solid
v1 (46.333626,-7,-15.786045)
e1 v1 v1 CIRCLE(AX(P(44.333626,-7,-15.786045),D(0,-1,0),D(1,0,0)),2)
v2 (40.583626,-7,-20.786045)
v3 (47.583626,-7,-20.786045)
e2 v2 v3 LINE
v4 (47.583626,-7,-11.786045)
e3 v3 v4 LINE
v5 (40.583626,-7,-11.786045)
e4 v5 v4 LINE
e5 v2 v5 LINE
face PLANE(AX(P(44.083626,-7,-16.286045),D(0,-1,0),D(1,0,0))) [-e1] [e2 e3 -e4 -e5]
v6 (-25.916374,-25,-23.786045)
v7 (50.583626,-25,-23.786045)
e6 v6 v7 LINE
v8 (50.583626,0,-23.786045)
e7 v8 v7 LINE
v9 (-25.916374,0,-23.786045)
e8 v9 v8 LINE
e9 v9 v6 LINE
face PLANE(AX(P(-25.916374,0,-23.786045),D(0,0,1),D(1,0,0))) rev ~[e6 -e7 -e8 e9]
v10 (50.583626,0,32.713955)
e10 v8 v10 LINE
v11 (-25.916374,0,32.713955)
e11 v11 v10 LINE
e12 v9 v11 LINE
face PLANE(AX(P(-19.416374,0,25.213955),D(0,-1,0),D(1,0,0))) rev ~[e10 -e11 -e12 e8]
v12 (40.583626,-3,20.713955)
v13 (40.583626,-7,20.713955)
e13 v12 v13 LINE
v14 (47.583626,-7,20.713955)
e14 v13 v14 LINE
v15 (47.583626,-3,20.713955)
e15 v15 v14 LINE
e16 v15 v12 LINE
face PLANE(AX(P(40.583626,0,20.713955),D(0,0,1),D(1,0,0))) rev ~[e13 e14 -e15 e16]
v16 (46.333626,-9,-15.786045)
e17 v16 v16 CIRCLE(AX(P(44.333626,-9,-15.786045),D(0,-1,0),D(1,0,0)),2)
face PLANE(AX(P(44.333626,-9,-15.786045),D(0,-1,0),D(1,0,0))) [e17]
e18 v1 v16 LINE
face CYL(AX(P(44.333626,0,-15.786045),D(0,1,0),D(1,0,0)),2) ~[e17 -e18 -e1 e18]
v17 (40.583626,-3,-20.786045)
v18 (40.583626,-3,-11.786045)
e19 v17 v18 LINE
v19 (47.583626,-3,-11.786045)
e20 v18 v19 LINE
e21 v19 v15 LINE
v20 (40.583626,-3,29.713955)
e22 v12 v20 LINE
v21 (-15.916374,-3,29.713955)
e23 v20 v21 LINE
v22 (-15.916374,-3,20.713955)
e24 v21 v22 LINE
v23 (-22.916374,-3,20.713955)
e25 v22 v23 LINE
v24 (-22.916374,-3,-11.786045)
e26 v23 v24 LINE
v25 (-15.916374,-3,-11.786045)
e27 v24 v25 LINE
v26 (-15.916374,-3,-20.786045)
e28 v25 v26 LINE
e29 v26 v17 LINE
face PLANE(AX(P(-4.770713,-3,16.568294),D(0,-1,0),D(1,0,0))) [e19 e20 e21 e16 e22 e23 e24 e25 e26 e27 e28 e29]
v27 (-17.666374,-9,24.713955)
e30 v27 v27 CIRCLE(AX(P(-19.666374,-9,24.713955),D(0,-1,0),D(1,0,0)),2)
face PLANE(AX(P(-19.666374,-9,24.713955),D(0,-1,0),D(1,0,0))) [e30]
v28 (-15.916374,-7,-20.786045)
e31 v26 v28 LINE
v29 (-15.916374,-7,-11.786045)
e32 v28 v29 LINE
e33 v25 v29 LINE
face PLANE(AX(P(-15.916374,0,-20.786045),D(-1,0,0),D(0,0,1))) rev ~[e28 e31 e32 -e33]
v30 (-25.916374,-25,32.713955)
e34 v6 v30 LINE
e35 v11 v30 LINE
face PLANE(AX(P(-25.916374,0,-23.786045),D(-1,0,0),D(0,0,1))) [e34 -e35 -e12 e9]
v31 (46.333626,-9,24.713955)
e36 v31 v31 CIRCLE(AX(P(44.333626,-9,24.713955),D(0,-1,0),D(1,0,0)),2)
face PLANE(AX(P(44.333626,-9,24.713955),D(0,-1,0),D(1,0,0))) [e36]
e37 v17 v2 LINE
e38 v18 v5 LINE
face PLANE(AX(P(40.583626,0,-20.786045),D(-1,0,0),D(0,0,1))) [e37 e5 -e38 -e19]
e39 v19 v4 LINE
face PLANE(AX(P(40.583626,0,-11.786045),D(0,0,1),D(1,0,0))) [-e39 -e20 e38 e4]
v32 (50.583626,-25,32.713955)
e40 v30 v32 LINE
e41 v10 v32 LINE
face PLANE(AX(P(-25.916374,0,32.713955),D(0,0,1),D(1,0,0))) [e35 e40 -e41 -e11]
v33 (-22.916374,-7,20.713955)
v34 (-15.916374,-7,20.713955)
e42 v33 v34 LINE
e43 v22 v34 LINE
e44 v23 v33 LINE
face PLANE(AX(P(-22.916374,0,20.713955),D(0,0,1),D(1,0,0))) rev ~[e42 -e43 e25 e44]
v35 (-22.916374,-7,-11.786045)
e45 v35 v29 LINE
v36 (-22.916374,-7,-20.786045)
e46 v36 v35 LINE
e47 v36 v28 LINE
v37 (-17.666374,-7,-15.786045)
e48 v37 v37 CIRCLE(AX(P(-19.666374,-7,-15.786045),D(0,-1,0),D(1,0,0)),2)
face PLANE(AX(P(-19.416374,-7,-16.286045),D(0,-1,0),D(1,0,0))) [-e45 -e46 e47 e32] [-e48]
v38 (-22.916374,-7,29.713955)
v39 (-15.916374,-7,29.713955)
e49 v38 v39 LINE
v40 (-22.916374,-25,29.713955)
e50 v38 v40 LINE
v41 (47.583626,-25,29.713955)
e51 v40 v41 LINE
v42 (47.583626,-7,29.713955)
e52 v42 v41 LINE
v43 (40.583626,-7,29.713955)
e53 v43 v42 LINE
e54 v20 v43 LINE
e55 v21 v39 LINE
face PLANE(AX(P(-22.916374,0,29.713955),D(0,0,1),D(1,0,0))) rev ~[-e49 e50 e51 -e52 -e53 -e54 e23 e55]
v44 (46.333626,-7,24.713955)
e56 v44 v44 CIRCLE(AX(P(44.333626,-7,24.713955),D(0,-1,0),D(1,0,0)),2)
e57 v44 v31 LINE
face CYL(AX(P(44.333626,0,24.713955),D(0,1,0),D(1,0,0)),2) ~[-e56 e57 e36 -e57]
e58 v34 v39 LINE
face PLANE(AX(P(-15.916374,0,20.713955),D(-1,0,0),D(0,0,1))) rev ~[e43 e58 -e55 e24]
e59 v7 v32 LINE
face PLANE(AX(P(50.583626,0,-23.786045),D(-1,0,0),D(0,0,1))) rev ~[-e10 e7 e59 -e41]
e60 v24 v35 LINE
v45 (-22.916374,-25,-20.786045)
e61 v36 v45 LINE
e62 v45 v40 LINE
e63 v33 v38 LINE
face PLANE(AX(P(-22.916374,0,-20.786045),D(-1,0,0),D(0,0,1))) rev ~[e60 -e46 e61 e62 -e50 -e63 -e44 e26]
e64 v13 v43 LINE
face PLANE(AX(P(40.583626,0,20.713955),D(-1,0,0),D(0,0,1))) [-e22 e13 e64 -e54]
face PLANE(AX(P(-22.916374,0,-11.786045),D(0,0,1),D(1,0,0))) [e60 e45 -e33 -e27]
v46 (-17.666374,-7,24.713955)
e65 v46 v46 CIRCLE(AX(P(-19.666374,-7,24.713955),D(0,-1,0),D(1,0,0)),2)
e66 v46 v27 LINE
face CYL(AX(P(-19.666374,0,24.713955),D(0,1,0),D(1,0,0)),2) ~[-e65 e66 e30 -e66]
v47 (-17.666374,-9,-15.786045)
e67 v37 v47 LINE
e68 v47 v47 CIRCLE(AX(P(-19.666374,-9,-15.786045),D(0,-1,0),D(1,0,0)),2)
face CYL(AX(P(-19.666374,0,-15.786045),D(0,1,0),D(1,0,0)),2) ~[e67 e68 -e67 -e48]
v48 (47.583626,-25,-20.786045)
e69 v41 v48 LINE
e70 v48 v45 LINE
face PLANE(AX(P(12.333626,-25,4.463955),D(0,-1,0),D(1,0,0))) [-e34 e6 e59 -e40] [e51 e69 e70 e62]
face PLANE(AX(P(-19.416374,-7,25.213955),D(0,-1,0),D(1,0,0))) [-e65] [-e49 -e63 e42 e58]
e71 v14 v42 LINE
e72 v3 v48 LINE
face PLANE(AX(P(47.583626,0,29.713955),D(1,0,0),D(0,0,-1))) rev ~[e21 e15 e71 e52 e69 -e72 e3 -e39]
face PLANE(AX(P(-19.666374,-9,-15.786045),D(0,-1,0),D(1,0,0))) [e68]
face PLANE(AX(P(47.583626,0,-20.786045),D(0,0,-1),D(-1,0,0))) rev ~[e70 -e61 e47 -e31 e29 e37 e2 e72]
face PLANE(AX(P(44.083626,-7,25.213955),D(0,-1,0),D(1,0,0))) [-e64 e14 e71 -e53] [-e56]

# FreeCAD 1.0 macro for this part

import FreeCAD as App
import Part
import Sketcher

V = App.Vector


def add_polygon(sketch, points):
    """Adds a closed chain of lines whose ends are joined by coincident constraints."""
    first, n = sketch.GeometryCount, len(points)
    for a, b in zip(points, points[1:] + points[:1]):
        sketch.addGeometry(Part.LineSegment(App.Vector(*a, 0), App.Vector(*b, 0)), False)
    for i in range(n):
        sketch.addConstraint(Sketcher.Constraint("Coincident", first + i, 2, first + (i + 1) % n, 1))

doc = App.newDocument("Part")
params = doc.addObject("Spreadsheet::Sheet", "Params")
for row, (alias, value) in enumerate([
    ("sketch1_width", "76.5 mm"),
    ("sketch1_width2", "70.5 mm"),
    ("sketch1_height", "56.5 mm"),
    ("sketch1_height2", "50.5 mm"),
    ("pad1_length", "25 mm"),
    ("sketch2_width", "7 mm"),
    ("sketch2_height", "9 mm"),
    ("sketch2_width2", "56.5 mm"),
    ("sketch2_height2", "32.5 mm"),
    ("pad2_length", "3 mm"),
    ("sketch3_diameter", "4 mm"),
    ("sketch3_width", "7 mm"),
    ("sketch3_height", "9 mm"),
    ("pad3_length", "7 mm"),
    ("sketch4_diameter", "4 mm"),
    ("pad4_length", "9 mm"),
    ("sketch5_diameter", "4 mm"),
    ("pad5_length", "9 mm"),
    ("sketch6_diameter", "4 mm"),
    ("pad6_length", "9 mm"),
], start=1):
    params.set(f"A{row}", alias)
    params.set(f"B{row}", "=" + value)
    params.setAlias(f"B{row}", alias)

body = doc.addObject("PartDesign::Body", "Body")

sketch1 = body.newObject("Sketcher::SketchObject", "Sketch")
sketch1.AttachmentSupport = (doc.getObject("XZ_Plane"), [""])
sketch1.MapMode = "FlatFace"
add_polygon(sketch1, [(-26, 33), (-26, -24), (51, -24), (51, 33)])
add_polygon(sketch1, [(-23, -21), (-23, 30), (48, 30), (48, -21)])
sketch1.addConstraint([
    Sketcher.Constraint("Vertical", 0),
    Sketcher.Constraint("Horizontal", 1),
    Sketcher.Constraint("Vertical", 2),
    Sketcher.Constraint("Horizontal", 3),
    Sketcher.Constraint("Vertical", 4),
    Sketcher.Constraint("Horizontal", 5),
    Sketcher.Constraint("Vertical", 6),
    Sketcher.Constraint("Horizontal", 7),
    Sketcher.Constraint("DistanceX", 1, 1, 1, 2, 76.5),
    Sketcher.Constraint("DistanceX", 5, 1, 5, 2, 70.5),
    Sketcher.Constraint("DistanceY", 0, 2, 0, 1, 56.5),
    Sketcher.Constraint("DistanceY", 4, 1, 4, 2, 50.5),
    Sketcher.Constraint("DistanceX", 3, 2, 4, 2, 3.0),
    Sketcher.Constraint("DistanceY", 4, 2, 3, 2, 3.0),
    Sketcher.Constraint("DistanceX", 0, 2, -1, 1, 25.916374),
    Sketcher.Constraint("DistanceY", 0, 2, -1, 1, 23.786045),
])
sketch1.setExpression("Constraints[16]", "Params.sketch1_width")
sketch1.setExpression("Constraints[17]", "Params.sketch1_width2")
sketch1.setExpression("Constraints[18]", "Params.sketch1_height")
sketch1.setExpression("Constraints[19]", "Params.sketch1_height2")
pad1 = body.newObject("PartDesign::Pad", "Pad")
pad1.Profile = sketch1
pad1.setExpression("Length", "Params.pad1_length")

sketch2 = body.newObject("Sketcher::SketchObject", "Sketch001")
sketch2.AttachmentSupport = (doc.getObject("XZ_Plane"), [""])
sketch2.MapMode = "FlatFace"
add_polygon(sketch2, [(-16, 30), (-16, 21), (-23, 21), (-23, -12), (-16, -12), (-16, -21), (41, -21), (41, -12), (48, -12), (48, 21), (41, 21), (41, 30)])
sketch2.addConstraint([
    Sketcher.Constraint("Vertical", 0),
    Sketcher.Constraint("Horizontal", 1),
    Sketcher.Constraint("Vertical", 2),
    Sketcher.Constraint("Horizontal", 3),
    Sketcher.Constraint("Vertical", 4),
    Sketcher.Constraint("Horizontal", 5),
    Sketcher.Constraint("Vertical", 6),
    Sketcher.Constraint("Horizontal", 7),
    Sketcher.Constraint("Vertical", 8),
    Sketcher.Constraint("Horizontal", 9),
    Sketcher.Constraint("Vertical", 10),
    Sketcher.Constraint("Horizontal", 11),
    Sketcher.Constraint("Horizontal", 3, 2, 6, 2),
    Sketcher.Constraint("Horizontal", 1, 2, 8, 2),
    Sketcher.Constraint("Vertical", 0, 2, 3, 2),
    Sketcher.Constraint("Vertical", 6, 2, 9, 2),
    Sketcher.Constraint("Equal", 3, 7),
    Sketcher.Constraint("Equal", 0, 4),
    Sketcher.Constraint("DistanceX", 1, 2, 1, 1, 7.0),
    Sketcher.Constraint("DistanceY", 0, 2, 0, 1, 9.0),
    Sketcher.Constraint("DistanceX", 5, 1, 5, 2, 56.5),
    Sketcher.Constraint("DistanceY", 2, 2, 2, 1, 32.5),
    Sketcher.Constraint("DistanceX", 0, 2, -1, 1, 15.916374),
    Sketcher.Constraint("DistanceY", -1, 1, 0, 2, 20.713955),
])
sketch2.setExpression("Constraints[30]", "Params.sketch2_width")
sketch2.setExpression("Constraints[31]", "Params.sketch2_height")
sketch2.setExpression("Constraints[32]", "Params.sketch2_width2")
sketch2.setExpression("Constraints[33]", "Params.sketch2_height2")
pad2 = body.newObject("PartDesign::Pad", "Pad001")
pad2.Profile = sketch2
pad2.setExpression("Length", "Params.pad2_length")

sketch3 = body.newObject("Sketcher::SketchObject", "Sketch002")
sketch3.AttachmentSupport = (doc.getObject("XZ_Plane"), [""])
sketch3.MapMode = "FlatFace"
add_polygon(sketch3, [(-22.9, 29.7), (-22.9, 20.7), (-15.9, 20.7), (-15.9, 29.7)])
sketch3.addGeometry(Part.Circle(V(-19.7, 24.7, 0), V(0, 0, 1), 2), False)
add_polygon(sketch3, [(40.6, 29.7), (40.6, 20.7), (47.6, 20.7), (47.6, 29.7)])
sketch3.addGeometry(Part.Circle(V(44.3, 24.7, 0), V(0, 0, 1), 2), False)
add_polygon(sketch3, [(40.6, -11.8), (40.6, -20.8), (47.6, -20.8), (47.6, -11.8)])
sketch3.addGeometry(Part.Circle(V(44.3, -15.8, 0), V(0, 0, 1), 2), False)
add_polygon(sketch3, [(-22.9, -11.8), (-22.9, -20.8), (-15.9, -20.8), (-15.9, -11.8)])
sketch3.addGeometry(Part.Circle(V(-19.7, -15.8, 0), V(0, 0, 1), 2), False)
sketch3.addConstraint([
    Sketcher.Constraint("Vertical", 0),
    Sketcher.Constraint("Horizontal", 1),
    Sketcher.Constraint("Vertical", 2),
    Sketcher.Constraint("Horizontal", 3),
    Sketcher.Constraint("Vertical", 5),
    Sketcher.Constraint("Horizontal", 6),
    Sketcher.Constraint("Vertical", 7),
    Sketcher.Constraint("Horizontal", 8),
    Sketcher.Constraint("Vertical", 10),
    Sketcher.Constraint("Horizontal", 11),
    Sketcher.Constraint("Vertical", 12),
    Sketcher.Constraint("Horizontal", 13),
    Sketcher.Constraint("Vertical", 15),
    Sketcher.Constraint("Horizontal", 16),
    Sketcher.Constraint("Vertical", 17),
    Sketcher.Constraint("Horizontal", 18),
    Sketcher.Constraint("Equal", 4, 9),
    Sketcher.Constraint("Equal", 9, 14),
    Sketcher.Constraint("Equal", 14, 19),
    Sketcher.Constraint("Horizontal", 4, 3, 9, 3),
    Sketcher.Constraint("Horizontal", 14, 3, 19, 3),
    Sketcher.Constraint("Horizontal", 1, 2, 5, 2),
    Sketcher.Constraint("Horizontal", 3, 2, 7, 2),
    Sketcher.Constraint("Horizontal", 11, 2, 15, 2),
    Sketcher.Constraint("Horizontal", 13, 2, 17, 2),
    Sketcher.Constraint("Vertical", 9, 3, 14, 3),
    Sketcher.Constraint("Vertical", 4, 3, 19, 3),
    Sketcher.Constraint("Vertical", 8, 2, 10, 2),
    Sketcher.Constraint("Vertical", 7, 2, 11, 2),
    Sketcher.Constraint("Vertical", 3, 2, 15, 2),
    Sketcher.Constraint("Vertical", 2, 2, 16, 2),
    Sketcher.Constraint("Equal", 3, 6),
    Sketcher.Constraint("Equal", 7, 10),
    Sketcher.Constraint("Diameter", 4, 4.0),
    Sketcher.Constraint("DistanceX", 1, 1, 1, 2, 7.0),
    Sketcher.Constraint("DistanceY", 0, 2, 0, 1, 9.0),
    Sketcher.Constraint("DistanceX", 4, 3, 9, 3, 64.0),
    Sketcher.Constraint("DistanceY", 0, 2, 4, 3, 4.0),
    Sketcher.Constraint("DistanceY", 10, 2, 14, 3, 5.0),
    Sketcher.Constraint("DistanceY", 14, 3, 9, 3, 40.5),
    Sketcher.Constraint("DistanceX", 1, 2, 5, 2, 56.5),
    Sketcher.Constraint("DistanceX", 0, 2, 4, 3, 3.25),
    Sketcher.Constraint("DistanceX", 4, 3, -1, 1, 19.666374),
    Sketcher.Constraint("DistanceY", -1, 1, 4, 3, 24.713955),
])
sketch3.setExpression("Constraints[49]", "Params.sketch3_diameter")
sketch3.setExpression("Constraints[50]", "Params.sketch3_width")
sketch3.setExpression("Constraints[51]", "Params.sketch3_height")
pad3 = body.newObject("PartDesign::Pad", "Pad002")
pad3.Profile = sketch3
pad3.setExpression("Length", "Params.pad3_length")

sketch4 = body.newObject("Sketcher::SketchObject", "Sketch003")
sketch4.AttachmentSupport = (doc.getObject("XZ_Plane"), [""])
sketch4.MapMode = "FlatFace"
sketch4.addGeometry([
    Part.Circle(V(-19.7, 24.7, 0), V(0, 0, 1), 2),
    Part.Circle(V(44.3, -15.8, 0), V(0, 0, 1), 2),
], False)
sketch4.addConstraint([
    Sketcher.Constraint("Equal", 0, 1),
    Sketcher.Constraint("Diameter", 0, 4.0),
    Sketcher.Constraint("DistanceX", 0, 3, 1, 3, 64.0),
    Sketcher.Constraint("DistanceY", 1, 3, 0, 3, 40.5),
    Sketcher.Constraint("DistanceX", 0, 3, -1, 1, 19.666374),
    Sketcher.Constraint("DistanceY", -1, 1, 0, 3, 24.713955),
])
sketch4.setExpression("Constraints[1]", "Params.sketch4_diameter")
pad4 = body.newObject("PartDesign::Pad", "Pad003")
pad4.Profile = sketch4
pad4.setExpression("Length", "Params.pad4_length")

sketch5 = body.newObject("Sketcher::SketchObject", "Sketch004")
sketch5.AttachmentSupport = (doc.getObject("XZ_Plane"), [""])
sketch5.MapMode = "FlatFace"
sketch5.addGeometry(Part.Circle(V(44.3, 24.7, 0), V(0, 0, 1), 2), False)
sketch5.addConstraint([
    Sketcher.Constraint("Diameter", 0, 4.0),
    Sketcher.Constraint("DistanceX", -1, 1, 0, 3, 44.333626),
    Sketcher.Constraint("DistanceY", -1, 1, 0, 3, 24.713955),
])
sketch5.setExpression("Constraints[0]", "Params.sketch5_diameter")
pad5 = body.newObject("PartDesign::Pad", "Pad004")
pad5.Profile = sketch5
pad5.setExpression("Length", "Params.pad5_length")

sketch6 = body.newObject("Sketcher::SketchObject", "Sketch005")
sketch6.AttachmentSupport = (doc.getObject("XZ_Plane"), [""])
sketch6.MapMode = "FlatFace"
sketch6.addGeometry(Part.Circle(V(-19.7, -15.8, 0), V(0, 0, 1), 2), False)
sketch6.addConstraint([
    Sketcher.Constraint("Diameter", 0, 4.0),
    Sketcher.Constraint("DistanceX", 0, 3, -1, 1, 19.666374),
    Sketcher.Constraint("DistanceY", 0, 3, -1, 1, 15.786045),
])
sketch6.setExpression("Constraints[0]", "Params.sketch6_diameter")
pad6 = body.newObject("PartDesign::Pad", "Pad005")
pad6.Profile = sketch6
pad6.setExpression("Length", "Params.pad6_length")

doc.recompute()
